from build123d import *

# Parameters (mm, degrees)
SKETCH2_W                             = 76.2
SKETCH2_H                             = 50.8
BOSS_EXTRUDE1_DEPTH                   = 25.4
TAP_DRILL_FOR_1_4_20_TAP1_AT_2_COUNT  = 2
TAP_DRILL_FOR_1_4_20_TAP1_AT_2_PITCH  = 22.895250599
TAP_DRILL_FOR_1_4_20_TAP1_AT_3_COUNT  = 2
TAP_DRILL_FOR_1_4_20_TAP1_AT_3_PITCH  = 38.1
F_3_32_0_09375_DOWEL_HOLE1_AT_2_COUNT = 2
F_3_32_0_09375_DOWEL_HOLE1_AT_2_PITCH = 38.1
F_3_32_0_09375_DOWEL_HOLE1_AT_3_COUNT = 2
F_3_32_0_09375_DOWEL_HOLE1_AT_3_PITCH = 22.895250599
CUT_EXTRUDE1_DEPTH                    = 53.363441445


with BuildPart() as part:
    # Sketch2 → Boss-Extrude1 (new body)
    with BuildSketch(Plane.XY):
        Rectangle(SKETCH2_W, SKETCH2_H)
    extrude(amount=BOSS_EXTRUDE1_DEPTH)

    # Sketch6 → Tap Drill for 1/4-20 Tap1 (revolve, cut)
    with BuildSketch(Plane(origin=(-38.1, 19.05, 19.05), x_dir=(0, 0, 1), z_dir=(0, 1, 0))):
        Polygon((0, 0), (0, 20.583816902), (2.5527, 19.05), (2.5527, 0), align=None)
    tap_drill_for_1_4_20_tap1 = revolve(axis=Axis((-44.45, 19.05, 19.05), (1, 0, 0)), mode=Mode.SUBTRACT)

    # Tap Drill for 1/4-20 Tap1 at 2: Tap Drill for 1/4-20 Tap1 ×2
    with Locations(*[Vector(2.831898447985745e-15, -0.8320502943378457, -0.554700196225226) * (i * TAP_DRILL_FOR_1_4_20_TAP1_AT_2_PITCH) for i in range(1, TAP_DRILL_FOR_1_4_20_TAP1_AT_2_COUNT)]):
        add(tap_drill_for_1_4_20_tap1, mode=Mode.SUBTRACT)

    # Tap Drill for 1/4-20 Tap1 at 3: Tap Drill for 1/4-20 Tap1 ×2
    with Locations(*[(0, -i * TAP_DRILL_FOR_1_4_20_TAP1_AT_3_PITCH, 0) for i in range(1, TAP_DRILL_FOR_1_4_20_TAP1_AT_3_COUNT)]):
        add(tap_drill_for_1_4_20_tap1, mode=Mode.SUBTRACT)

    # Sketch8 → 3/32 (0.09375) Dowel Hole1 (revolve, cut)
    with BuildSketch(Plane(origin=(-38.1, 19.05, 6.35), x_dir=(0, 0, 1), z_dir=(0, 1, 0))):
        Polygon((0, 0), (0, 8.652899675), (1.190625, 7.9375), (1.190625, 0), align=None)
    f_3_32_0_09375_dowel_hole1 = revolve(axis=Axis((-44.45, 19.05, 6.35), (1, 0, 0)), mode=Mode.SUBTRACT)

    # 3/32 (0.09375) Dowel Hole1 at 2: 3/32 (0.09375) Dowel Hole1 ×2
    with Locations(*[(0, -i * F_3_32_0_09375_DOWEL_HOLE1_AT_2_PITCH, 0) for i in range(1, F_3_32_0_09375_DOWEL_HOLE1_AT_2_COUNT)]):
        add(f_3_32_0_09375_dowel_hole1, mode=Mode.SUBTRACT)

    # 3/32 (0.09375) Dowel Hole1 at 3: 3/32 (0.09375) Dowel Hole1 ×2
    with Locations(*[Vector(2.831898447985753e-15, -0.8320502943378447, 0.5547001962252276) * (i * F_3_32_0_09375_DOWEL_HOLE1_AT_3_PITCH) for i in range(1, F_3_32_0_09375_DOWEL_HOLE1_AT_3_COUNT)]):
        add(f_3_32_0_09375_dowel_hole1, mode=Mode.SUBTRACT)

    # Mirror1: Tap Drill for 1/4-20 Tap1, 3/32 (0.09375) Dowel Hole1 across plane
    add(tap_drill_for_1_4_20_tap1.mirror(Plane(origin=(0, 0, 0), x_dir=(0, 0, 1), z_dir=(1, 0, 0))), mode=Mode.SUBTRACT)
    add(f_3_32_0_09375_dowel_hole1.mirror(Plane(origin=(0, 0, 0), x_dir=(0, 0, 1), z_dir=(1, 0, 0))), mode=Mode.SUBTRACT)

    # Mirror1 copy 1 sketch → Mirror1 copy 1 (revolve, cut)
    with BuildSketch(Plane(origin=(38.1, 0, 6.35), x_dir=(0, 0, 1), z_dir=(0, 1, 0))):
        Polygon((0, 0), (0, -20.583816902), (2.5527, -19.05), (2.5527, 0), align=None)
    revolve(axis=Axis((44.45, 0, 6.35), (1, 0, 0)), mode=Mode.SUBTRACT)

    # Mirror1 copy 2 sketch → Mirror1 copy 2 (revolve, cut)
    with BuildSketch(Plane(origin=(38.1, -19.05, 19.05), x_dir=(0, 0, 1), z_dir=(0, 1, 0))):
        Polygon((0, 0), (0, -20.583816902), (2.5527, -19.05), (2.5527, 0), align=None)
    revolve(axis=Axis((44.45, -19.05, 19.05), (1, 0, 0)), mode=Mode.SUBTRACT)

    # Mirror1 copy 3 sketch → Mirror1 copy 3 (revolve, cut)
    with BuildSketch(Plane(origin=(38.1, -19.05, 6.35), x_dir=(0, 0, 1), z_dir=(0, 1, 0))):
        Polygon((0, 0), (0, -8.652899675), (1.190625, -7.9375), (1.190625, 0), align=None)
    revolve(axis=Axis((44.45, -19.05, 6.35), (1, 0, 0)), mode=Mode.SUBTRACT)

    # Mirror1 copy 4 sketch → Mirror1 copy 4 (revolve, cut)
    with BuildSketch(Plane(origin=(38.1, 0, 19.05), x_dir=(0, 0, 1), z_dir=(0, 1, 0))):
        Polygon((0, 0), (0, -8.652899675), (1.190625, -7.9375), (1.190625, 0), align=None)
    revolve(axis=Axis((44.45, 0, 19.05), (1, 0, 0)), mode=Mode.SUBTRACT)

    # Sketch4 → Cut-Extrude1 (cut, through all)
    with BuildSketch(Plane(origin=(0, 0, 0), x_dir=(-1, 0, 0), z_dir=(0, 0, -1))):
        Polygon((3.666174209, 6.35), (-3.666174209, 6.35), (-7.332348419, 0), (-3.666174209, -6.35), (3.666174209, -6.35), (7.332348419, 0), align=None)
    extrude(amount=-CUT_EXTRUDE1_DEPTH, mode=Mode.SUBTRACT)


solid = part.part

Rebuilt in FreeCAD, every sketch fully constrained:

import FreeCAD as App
import Part
import Sketcher
Q = App.Units.Quantity


def add_polygon(sketch, points):
    """Adds a closed chain of lines whose ends are joined by coincident constraints."""
    first, n = sketch.GeometryCount, len(points)
    for a, b in zip(points, points[1:] + points[:1]):
        sketch.addGeometry(Part.LineSegment(App.Vector(*a, 0), App.Vector(*b, 0)), False)
    for i in range(n):
        sketch.addConstraint(Sketcher.Constraint("Coincident", first + i, 2, first + (i + 1) % n, 1))

doc = App.newDocument("Part")
body = doc.addObject("PartDesign::Body", "Body")

# Sketch on XY plane
sketch1 = doc.addObject("Sketcher::SketchObject", "Sketch")
body.addObject(sketch1)
sketch1.AttachmentSupport = (doc.XY_Plane, [""])
sketch1.MapMode = "FlatFace"
add_polygon(sketch1, [(-38.1, 25.4), (-38.1, -25.4), (38.1, -25.4), (38.1, 25.4)])  # lines 0-3
sketch1.addConstraint(Sketcher.Constraint("Vertical", 0))
sketch1.addConstraint(Sketcher.Constraint("Horizontal", 1))
sketch1.addConstraint(Sketcher.Constraint("Vertical", 2))
sketch1.addConstraint(Sketcher.Constraint("Horizontal", 3))
sketch1.addConstraint(Sketcher.Constraint("Symmetric", 0, 2, 2, 2, -1, 1))
sketch1.addConstraint(Sketcher.Constraint("DistanceX", 1, 1, 1, 2, Q("3 in")))
sketch1.addConstraint(Sketcher.Constraint("DistanceY", 0, 2, 0, 1, Q("2 in")))
pad1 = doc.addObject("PartDesign::Pad", "Pad")
body.addObject(pad1)
pad1.Profile = sketch1
pad1.Length = Q("1 in")

# Sketch on XZ plane
sketch2 = doc.addObject("Sketcher::SketchObject", "Sketch001")
body.addObject(sketch2)
sketch2.AttachmentSupport = (doc.XZ_Plane, [""])
sketch2.MapMode = "FlatFace"
sketch2.AttachmentOffset = App.Placement(App.Vector(0, 0, -0.75 * 25.4), App.Rotation())
add_polygon(sketch2, [(-17.516183, 19.05), (-38.1, 19.05), (-38.1, 21.6027), (-19.05, 21.6027)])  # lines 0-3
sketch2.addGeometry(Part.LineSegment(App.Vector(-38.1, 19.05, 0), App.Vector(-17.516183, 19.05, 0)), True)  # axis
sketch2.addConstraint(Sketcher.Constraint("Horizontal", 0))
sketch2.addConstraint(Sketcher.Constraint("Vertical", 1))
sketch2.addConstraint(Sketcher.Constraint("Horizontal", 2))
sketch2.addConstraint(Sketcher.Constraint("Horizontal", 4))
sketch2.addConstraint(Sketcher.Constraint("Coincident", 4, 1, 0, 2))
sketch2.addConstraint(Sketcher.Constraint("Equal", 0, 4))
sketch2.addConstraint(Sketcher.Constraint("Angle", 3, Q("-59 deg")))
sketch2.addConstraint(Sketcher.Constraint("DistanceX", 2, 1, 2, 2, Q("0.75 in")))
sketch2.addConstraint(Sketcher.Constraint("DistanceX", 0, 2, -1, 1, Q("1.5 in")))
sketch2.addConstraint(Sketcher.Constraint("DistanceY", -1, 1, 0, 2, Q("0.75 in")))
sketch2.addConstraint(Sketcher.Constraint("DistanceY", 1, 1, 1, 2, Q("0.1005 in")))
groove = doc.addObject("PartDesign::Groove", "Groove")
body.addObject(groove)
groove.Profile = sketch2
groove.ReferenceAxis = (sketch2, ["Axis0"])
groove.Angle = 360
doc.recompute()

datumline = doc.addObject("PartDesign::Line", "DatumLine")
body.addObject(datumline)
datumline.Placement = App.Placement(App.Vector(0, 0, 0), App.Rotation(App.Vector(0, 0, 1), App.Vector(0, -0.832050294, -0.554700196)))
linearpattern = doc.addObject("PartDesign::LinearPattern", "LinearPattern")
body.addObject(linearpattern)
linearpattern.Originals = [groove]
linearpattern.Direction = (datumline, [""])
linearpattern.Mode = "offset"
linearpattern.Offset = 22.895251
linearpattern.Occurrences = 2
body.Tip = linearpattern
doc.recompute()

linearpattern2 = doc.addObject("PartDesign::LinearPattern", "LinearPattern001")
body.addObject(linearpattern2)
linearpattern2.Originals = [groove]
linearpattern2.Direction = (doc.Y_Axis, [""])
linearpattern2.Mode = "offset"
linearpattern2.Offset = Q("1.5 in")
linearpattern2.Occurrences = 2
linearpattern2.Reversed = True
body.Tip = linearpattern2

# Sketch on XZ plane
sketch3 = doc.addObject("Sketcher::SketchObject", "Sketch002")
body.addObject(sketch3)
sketch3.AttachmentSupport = (doc.XZ_Plane, [""])
sketch3.MapMode = "FlatFace"
sketch3.AttachmentOffset = App.Placement(App.Vector(0, 0, -0.75 * 25.4), App.Rotation())
add_polygon(sketch3, [(-29.4471, 6.35), (-38.1, 6.35), (-38.1, 7.540625), (-30.1625, 7.540625)])  # lines 0-3
sketch3.addGeometry(Part.LineSegment(App.Vector(-38.1, 6.35, 0), App.Vector(-29.4471, 6.35, 0)), True)  # axis
sketch3.addConstraint(Sketcher.Constraint("Horizontal", 0))
sketch3.addConstraint(Sketcher.Constraint("Vertical", 1))
sketch3.addConstraint(Sketcher.Constraint("Horizontal", 2))
sketch3.addConstraint(Sketcher.Constraint("Horizontal", 4))
sketch3.addConstraint(Sketcher.Constraint("Coincident", 4, 1, 0, 2))
sketch3.addConstraint(Sketcher.Constraint("Equal", 0, 4))
sketch3.addConstraint(Sketcher.Constraint("Angle", 3, Q("-59 deg")))
sketch3.addConstraint(Sketcher.Constraint("DistanceX", 0, 2, -1, 1, Q("1.5 in")))
sketch3.addConstraint(Sketcher.Constraint("DistanceX", 2, 1, 2, 2, Q("0.3125 in")))
sketch3.addConstraint(Sketcher.Constraint("DistanceY", 1, 1, 1, 2, Q("0.046875 in")))
sketch3.addConstraint(Sketcher.Constraint("DistanceY", -1, 1, 0, 2, Q("0.25 in")))
groove2 = doc.addObject("PartDesign::Groove", "Groove001")
body.addObject(groove2)
groove2.Profile = sketch3
groove2.ReferenceAxis = (sketch3, ["Axis0"])
groove2.Angle = 360
doc.recompute()

linearpattern3 = doc.addObject("PartDesign::LinearPattern", "LinearPattern002")
body.addObject(linearpattern3)
linearpattern3.Originals = [groove2]
linearpattern3.Direction = (doc.Y_Axis, [""])
linearpattern3.Mode = "offset"
linearpattern3.Offset = Q("1.5 in")
linearpattern3.Occurrences = 2
linearpattern3.Reversed = True
body.Tip = linearpattern3
doc.recompute()

datumline2 = doc.addObject("PartDesign::Line", "DatumLine001")
body.addObject(datumline2)
datumline2.Placement = App.Placement(App.Vector(0, 0, 0), App.Rotation(App.Vector(0, 0, 1), App.Vector(0, -0.832050294, 0.554700196)))
linearpattern4 = doc.addObject("PartDesign::LinearPattern", "LinearPattern003")
body.addObject(linearpattern4)
linearpattern4.Originals = [groove2]
linearpattern4.Direction = (datumline2, [""])
linearpattern4.Mode = "offset"
linearpattern4.Offset = 22.895251
linearpattern4.Occurrences = 2
body.Tip = linearpattern4
doc.recompute()

mirrored = doc.addObject("PartDesign::Mirrored", "Mirrored")
body.addObject(mirrored)
mirrored.Originals = [groove, groove2]
mirrored.MirrorPlane = (doc.YZ_Plane, [""])
body.Tip = mirrored

# Sketch on XZ plane
sketch4 = doc.addObject("Sketcher::SketchObject", "Sketch003")
body.addObject(sketch4)
sketch4.AttachmentSupport = (doc.XZ_Plane, [""])
sketch4.MapMode = "FlatFace"
add_polygon(sketch4, [(38.1, 6.35), (17.516183, 6.35), (19.05, 8.9027), (38.1, 8.9027)])  # lines 0-3
sketch4.addGeometry(Part.LineSegment(App.Vector(17.516183, 6.35, 0), App.Vector(38.1, 6.35, 0)), True)  # axis
sketch4.addConstraint(Sketcher.Constraint("Horizontal", 0))
sketch4.addConstraint(Sketcher.Constraint("Horizontal", 2))
sketch4.addConstraint(Sketcher.Constraint("Vertical", 3))
sketch4.addConstraint(Sketcher.Constraint("Horizontal", 4))
sketch4.addConstraint(Sketcher.Constraint("Coincident", 4, 1, 0, 2))
sketch4.addConstraint(Sketcher.Constraint("Vertical", 2, 2, 4, 2))
sketch4.addConstraint(Sketcher.Constraint("Angle", 1, Q("59 deg")))
sketch4.addConstraint(Sketcher.Constraint("DistanceX", 2, 1, 2, 2, Q("0.75 in")))
sketch4.addConstraint(Sketcher.Constraint("DistanceX", -1, 1, 2, 2, Q("1.5 in")))
sketch4.addConstraint(Sketcher.Constraint("DistanceY", -1, 1, 0, 2, Q("0.25 in")))
sketch4.addConstraint(Sketcher.Constraint("DistanceY", 3, 2, 3, 1, Q("0.1005 in")))
groove3 = doc.addObject("PartDesign::Groove", "Groove002")
body.addObject(groove3)
groove3.Profile = sketch4
groove3.ReferenceAxis = (sketch4, ["Axis0"])
groove3.Angle = 360

# Sketch on XZ plane
sketch5 = doc.addObject("Sketcher::SketchObject", "Sketch004")
body.addObject(sketch5)
sketch5.AttachmentSupport = (doc.XZ_Plane, [""])
sketch5.MapMode = "FlatFace"
sketch5.AttachmentOffset = App.Placement(App.Vector(0, 0, 0.75 * 25.4), App.Rotation())
add_polygon(sketch5, [(38.1, 19.05), (17.516183, 19.05), (19.05, 21.6027), (38.1, 21.6027)])  # lines 0-3
sketch5.addGeometry(Part.LineSegment(App.Vector(17.516183, 19.05, 0), App.Vector(38.1, 19.05, 0)), True)  # axis
sketch5.addConstraint(Sketcher.Constraint("Horizontal", 0))
sketch5.addConstraint(Sketcher.Constraint("Horizontal", 2))
sketch5.addConstraint(Sketcher.Constraint("Vertical", 3))
sketch5.addConstraint(Sketcher.Constraint("Horizontal", 4))
sketch5.addConstraint(Sketcher.Constraint("Coincident", 4, 1, 0, 2))
sketch5.addConstraint(Sketcher.Constraint("Vertical", 2, 2, 4, 2))
sketch5.addConstraint(Sketcher.Constraint("Angle", 1, Q("59 deg")))
sketch5.addConstraint(Sketcher.Constraint("DistanceX", 2, 1, 2, 2, Q("0.75 in")))
sketch5.addConstraint(Sketcher.Constraint("DistanceX", -1, 1, 2, 2, Q("1.5 in")))
sketch5.addConstraint(Sketcher.Constraint("DistanceY", -1, 1, 0, 2, Q("0.75 in")))
sketch5.addConstraint(Sketcher.Constraint("DistanceY", 3, 2, 3, 1, Q("0.1005 in")))
groove4 = doc.addObject("PartDesign::Groove", "Groove003")
body.addObject(groove4)
groove4.Profile = sketch5
groove4.ReferenceAxis = (sketch5, ["Axis0"])
groove4.Angle = 360

# Sketch on XZ plane
sketch6 = doc.addObject("Sketcher::SketchObject", "Sketch005")
body.addObject(sketch6)
sketch6.AttachmentSupport = (doc.XZ_Plane, [""])
sketch6.MapMode = "FlatFace"
sketch6.AttachmentOffset = App.Placement(App.Vector(0, 0, 0.75 * 25.4), App.Rotation())
add_polygon(sketch6, [(38.1, 6.35), (29.4471, 6.35), (30.1625, 7.540625), (38.1, 7.540625)])  # lines 0-3
sketch6.addGeometry(Part.LineSegment(App.Vector(29.4471, 6.35, 0), App.Vector(38.1, 6.35, 0)), True)  # axis
sketch6.addConstraint(Sketcher.Constraint("Horizontal", 0))
sketch6.addConstraint(Sketcher.Constraint("Horizontal", 2))
sketch6.addConstraint(Sketcher.Constraint("Vertical", 3))
sketch6.addConstraint(Sketcher.Constraint("Horizontal", 4))
sketch6.addConstraint(Sketcher.Constraint("Coincident", 4, 1, 0, 2))
sketch6.addConstraint(Sketcher.Constraint("Vertical", 2, 2, 4, 2))
sketch6.addConstraint(Sketcher.Constraint("Angle", 1, Q("59 deg")))
sketch6.addConstraint(Sketcher.Constraint("DistanceX", -1, 1, 2, 2, Q("1.5 in")))
sketch6.addConstraint(Sketcher.Constraint("DistanceX", 2, 1, 2, 2, Q("0.3125 in")))
sketch6.addConstraint(Sketcher.Constraint("DistanceY", 3, 2, 3, 1, Q("0.046875 in")))
sketch6.addConstraint(Sketcher.Constraint("DistanceY", -1, 1, 0, 2, Q("0.25 in")))
groove5 = doc.addObject("PartDesign::Groove", "Groove004")
body.addObject(groove5)
groove5.Profile = sketch6
groove5.ReferenceAxis = (sketch6, ["Axis0"])
groove5.Angle = 360

# Sketch on XZ plane
sketch7 = doc.addObject("Sketcher::SketchObject", "Sketch006")
body.addObject(sketch7)
sketch7.AttachmentSupport = (doc.XZ_Plane, [""])
sketch7.MapMode = "FlatFace"
add_polygon(sketch7, [(38.1, 19.05), (29.4471, 19.05), (30.1625, 20.240625), (38.1, 20.240625)])  # lines 0-3
sketch7.addGeometry(Part.LineSegment(App.Vector(29.4471, 19.05, 0), App.Vector(38.1, 19.05, 0)), True)  # axis
sketch7.addConstraint(Sketcher.Constraint("Horizontal", 0))
sketch7.addConstraint(Sketcher.Constraint("Horizontal", 2))
sketch7.addConstraint(Sketcher.Constraint("Vertical", 3))
sketch7.addConstraint(Sketcher.Constraint("Horizontal", 4))
sketch7.addConstraint(Sketcher.Constraint("Coincident", 4, 1, 0, 2))
sketch7.addConstraint(Sketcher.Constraint("Vertical", 2, 2, 4, 2))
sketch7.addConstraint(Sketcher.Constraint("Angle", 1, Q("59 deg")))
sketch7.addConstraint(Sketcher.Constraint("DistanceX", -1, 1, 2, 2, Q("1.5 in")))
sketch7.addConstraint(Sketcher.Constraint("DistanceX", 2, 1, 2, 2, Q("0.3125 in")))
sketch7.addConstraint(Sketcher.Constraint("DistanceY", 3, 2, 3, 1, Q("0.046875 in")))
sketch7.addConstraint(Sketcher.Constraint("DistanceY", -1, 1, 0, 2, Q("0.75 in")))
groove6 = doc.addObject("PartDesign::Groove", "Groove005")
body.addObject(groove6)
groove6.Profile = sketch7
groove6.ReferenceAxis = (sketch7, ["Axis0"])
groove6.Angle = 360

# Sketch on XY plane
sketch8 = doc.addObject("Sketcher::SketchObject", "Sketch007")
body.addObject(sketch8)
sketch8.AttachmentSupport = (doc.XY_Plane, [""])
sketch8.MapMode = "FlatFace"
add_polygon(sketch8, [(-3.666174, 6.35), (3.666174, 6.35), (7.332348, 0), (3.666174, -6.35), (-3.666174, -6.35), (-7.332348, 0)])  # lines 0-5
sketch8.addConstraint(Sketcher.Constraint("Horizontal", 0))
sketch8.addConstraint(Sketcher.Constraint("Horizontal", 3))
sketch8.addConstraint(Sketcher.Constraint("Symmetric", 0, 2, 3, 2, -1, 1))
sketch8.addConstraint(Sketcher.Constraint("Symmetric", 1, 2, 4, 2, -1, 1))
sketch8.addConstraint(Sketcher.Constraint("PointOnObject", 1, 2, -1))
sketch8.addConstraint(Sketcher.Constraint("Parallel", 2, 5))
sketch8.addConstraint(Sketcher.Constraint("Vertical", 0, 2, 2, 2))
sketch8.addConstraint(Sketcher.Constraint("Angle", 1, Q("-60 deg")))
sketch8.addConstraint(Sketcher.Constraint("DistanceY", 2, 2, 0, 2, Q("0.5 in")))
sketch8.addConstraint(Sketcher.Constraint("DistanceX", 0, 1, 0, 2, Q("7.332348 mm")))
pocket1 = doc.addObject("PartDesign::Pocket", "Pocket")
body.addObject(pocket1)
pocket1.Profile = sketch8
pocket1.Type = "ThroughAll"
pocket1.Reversed = True

doc.recompute()
